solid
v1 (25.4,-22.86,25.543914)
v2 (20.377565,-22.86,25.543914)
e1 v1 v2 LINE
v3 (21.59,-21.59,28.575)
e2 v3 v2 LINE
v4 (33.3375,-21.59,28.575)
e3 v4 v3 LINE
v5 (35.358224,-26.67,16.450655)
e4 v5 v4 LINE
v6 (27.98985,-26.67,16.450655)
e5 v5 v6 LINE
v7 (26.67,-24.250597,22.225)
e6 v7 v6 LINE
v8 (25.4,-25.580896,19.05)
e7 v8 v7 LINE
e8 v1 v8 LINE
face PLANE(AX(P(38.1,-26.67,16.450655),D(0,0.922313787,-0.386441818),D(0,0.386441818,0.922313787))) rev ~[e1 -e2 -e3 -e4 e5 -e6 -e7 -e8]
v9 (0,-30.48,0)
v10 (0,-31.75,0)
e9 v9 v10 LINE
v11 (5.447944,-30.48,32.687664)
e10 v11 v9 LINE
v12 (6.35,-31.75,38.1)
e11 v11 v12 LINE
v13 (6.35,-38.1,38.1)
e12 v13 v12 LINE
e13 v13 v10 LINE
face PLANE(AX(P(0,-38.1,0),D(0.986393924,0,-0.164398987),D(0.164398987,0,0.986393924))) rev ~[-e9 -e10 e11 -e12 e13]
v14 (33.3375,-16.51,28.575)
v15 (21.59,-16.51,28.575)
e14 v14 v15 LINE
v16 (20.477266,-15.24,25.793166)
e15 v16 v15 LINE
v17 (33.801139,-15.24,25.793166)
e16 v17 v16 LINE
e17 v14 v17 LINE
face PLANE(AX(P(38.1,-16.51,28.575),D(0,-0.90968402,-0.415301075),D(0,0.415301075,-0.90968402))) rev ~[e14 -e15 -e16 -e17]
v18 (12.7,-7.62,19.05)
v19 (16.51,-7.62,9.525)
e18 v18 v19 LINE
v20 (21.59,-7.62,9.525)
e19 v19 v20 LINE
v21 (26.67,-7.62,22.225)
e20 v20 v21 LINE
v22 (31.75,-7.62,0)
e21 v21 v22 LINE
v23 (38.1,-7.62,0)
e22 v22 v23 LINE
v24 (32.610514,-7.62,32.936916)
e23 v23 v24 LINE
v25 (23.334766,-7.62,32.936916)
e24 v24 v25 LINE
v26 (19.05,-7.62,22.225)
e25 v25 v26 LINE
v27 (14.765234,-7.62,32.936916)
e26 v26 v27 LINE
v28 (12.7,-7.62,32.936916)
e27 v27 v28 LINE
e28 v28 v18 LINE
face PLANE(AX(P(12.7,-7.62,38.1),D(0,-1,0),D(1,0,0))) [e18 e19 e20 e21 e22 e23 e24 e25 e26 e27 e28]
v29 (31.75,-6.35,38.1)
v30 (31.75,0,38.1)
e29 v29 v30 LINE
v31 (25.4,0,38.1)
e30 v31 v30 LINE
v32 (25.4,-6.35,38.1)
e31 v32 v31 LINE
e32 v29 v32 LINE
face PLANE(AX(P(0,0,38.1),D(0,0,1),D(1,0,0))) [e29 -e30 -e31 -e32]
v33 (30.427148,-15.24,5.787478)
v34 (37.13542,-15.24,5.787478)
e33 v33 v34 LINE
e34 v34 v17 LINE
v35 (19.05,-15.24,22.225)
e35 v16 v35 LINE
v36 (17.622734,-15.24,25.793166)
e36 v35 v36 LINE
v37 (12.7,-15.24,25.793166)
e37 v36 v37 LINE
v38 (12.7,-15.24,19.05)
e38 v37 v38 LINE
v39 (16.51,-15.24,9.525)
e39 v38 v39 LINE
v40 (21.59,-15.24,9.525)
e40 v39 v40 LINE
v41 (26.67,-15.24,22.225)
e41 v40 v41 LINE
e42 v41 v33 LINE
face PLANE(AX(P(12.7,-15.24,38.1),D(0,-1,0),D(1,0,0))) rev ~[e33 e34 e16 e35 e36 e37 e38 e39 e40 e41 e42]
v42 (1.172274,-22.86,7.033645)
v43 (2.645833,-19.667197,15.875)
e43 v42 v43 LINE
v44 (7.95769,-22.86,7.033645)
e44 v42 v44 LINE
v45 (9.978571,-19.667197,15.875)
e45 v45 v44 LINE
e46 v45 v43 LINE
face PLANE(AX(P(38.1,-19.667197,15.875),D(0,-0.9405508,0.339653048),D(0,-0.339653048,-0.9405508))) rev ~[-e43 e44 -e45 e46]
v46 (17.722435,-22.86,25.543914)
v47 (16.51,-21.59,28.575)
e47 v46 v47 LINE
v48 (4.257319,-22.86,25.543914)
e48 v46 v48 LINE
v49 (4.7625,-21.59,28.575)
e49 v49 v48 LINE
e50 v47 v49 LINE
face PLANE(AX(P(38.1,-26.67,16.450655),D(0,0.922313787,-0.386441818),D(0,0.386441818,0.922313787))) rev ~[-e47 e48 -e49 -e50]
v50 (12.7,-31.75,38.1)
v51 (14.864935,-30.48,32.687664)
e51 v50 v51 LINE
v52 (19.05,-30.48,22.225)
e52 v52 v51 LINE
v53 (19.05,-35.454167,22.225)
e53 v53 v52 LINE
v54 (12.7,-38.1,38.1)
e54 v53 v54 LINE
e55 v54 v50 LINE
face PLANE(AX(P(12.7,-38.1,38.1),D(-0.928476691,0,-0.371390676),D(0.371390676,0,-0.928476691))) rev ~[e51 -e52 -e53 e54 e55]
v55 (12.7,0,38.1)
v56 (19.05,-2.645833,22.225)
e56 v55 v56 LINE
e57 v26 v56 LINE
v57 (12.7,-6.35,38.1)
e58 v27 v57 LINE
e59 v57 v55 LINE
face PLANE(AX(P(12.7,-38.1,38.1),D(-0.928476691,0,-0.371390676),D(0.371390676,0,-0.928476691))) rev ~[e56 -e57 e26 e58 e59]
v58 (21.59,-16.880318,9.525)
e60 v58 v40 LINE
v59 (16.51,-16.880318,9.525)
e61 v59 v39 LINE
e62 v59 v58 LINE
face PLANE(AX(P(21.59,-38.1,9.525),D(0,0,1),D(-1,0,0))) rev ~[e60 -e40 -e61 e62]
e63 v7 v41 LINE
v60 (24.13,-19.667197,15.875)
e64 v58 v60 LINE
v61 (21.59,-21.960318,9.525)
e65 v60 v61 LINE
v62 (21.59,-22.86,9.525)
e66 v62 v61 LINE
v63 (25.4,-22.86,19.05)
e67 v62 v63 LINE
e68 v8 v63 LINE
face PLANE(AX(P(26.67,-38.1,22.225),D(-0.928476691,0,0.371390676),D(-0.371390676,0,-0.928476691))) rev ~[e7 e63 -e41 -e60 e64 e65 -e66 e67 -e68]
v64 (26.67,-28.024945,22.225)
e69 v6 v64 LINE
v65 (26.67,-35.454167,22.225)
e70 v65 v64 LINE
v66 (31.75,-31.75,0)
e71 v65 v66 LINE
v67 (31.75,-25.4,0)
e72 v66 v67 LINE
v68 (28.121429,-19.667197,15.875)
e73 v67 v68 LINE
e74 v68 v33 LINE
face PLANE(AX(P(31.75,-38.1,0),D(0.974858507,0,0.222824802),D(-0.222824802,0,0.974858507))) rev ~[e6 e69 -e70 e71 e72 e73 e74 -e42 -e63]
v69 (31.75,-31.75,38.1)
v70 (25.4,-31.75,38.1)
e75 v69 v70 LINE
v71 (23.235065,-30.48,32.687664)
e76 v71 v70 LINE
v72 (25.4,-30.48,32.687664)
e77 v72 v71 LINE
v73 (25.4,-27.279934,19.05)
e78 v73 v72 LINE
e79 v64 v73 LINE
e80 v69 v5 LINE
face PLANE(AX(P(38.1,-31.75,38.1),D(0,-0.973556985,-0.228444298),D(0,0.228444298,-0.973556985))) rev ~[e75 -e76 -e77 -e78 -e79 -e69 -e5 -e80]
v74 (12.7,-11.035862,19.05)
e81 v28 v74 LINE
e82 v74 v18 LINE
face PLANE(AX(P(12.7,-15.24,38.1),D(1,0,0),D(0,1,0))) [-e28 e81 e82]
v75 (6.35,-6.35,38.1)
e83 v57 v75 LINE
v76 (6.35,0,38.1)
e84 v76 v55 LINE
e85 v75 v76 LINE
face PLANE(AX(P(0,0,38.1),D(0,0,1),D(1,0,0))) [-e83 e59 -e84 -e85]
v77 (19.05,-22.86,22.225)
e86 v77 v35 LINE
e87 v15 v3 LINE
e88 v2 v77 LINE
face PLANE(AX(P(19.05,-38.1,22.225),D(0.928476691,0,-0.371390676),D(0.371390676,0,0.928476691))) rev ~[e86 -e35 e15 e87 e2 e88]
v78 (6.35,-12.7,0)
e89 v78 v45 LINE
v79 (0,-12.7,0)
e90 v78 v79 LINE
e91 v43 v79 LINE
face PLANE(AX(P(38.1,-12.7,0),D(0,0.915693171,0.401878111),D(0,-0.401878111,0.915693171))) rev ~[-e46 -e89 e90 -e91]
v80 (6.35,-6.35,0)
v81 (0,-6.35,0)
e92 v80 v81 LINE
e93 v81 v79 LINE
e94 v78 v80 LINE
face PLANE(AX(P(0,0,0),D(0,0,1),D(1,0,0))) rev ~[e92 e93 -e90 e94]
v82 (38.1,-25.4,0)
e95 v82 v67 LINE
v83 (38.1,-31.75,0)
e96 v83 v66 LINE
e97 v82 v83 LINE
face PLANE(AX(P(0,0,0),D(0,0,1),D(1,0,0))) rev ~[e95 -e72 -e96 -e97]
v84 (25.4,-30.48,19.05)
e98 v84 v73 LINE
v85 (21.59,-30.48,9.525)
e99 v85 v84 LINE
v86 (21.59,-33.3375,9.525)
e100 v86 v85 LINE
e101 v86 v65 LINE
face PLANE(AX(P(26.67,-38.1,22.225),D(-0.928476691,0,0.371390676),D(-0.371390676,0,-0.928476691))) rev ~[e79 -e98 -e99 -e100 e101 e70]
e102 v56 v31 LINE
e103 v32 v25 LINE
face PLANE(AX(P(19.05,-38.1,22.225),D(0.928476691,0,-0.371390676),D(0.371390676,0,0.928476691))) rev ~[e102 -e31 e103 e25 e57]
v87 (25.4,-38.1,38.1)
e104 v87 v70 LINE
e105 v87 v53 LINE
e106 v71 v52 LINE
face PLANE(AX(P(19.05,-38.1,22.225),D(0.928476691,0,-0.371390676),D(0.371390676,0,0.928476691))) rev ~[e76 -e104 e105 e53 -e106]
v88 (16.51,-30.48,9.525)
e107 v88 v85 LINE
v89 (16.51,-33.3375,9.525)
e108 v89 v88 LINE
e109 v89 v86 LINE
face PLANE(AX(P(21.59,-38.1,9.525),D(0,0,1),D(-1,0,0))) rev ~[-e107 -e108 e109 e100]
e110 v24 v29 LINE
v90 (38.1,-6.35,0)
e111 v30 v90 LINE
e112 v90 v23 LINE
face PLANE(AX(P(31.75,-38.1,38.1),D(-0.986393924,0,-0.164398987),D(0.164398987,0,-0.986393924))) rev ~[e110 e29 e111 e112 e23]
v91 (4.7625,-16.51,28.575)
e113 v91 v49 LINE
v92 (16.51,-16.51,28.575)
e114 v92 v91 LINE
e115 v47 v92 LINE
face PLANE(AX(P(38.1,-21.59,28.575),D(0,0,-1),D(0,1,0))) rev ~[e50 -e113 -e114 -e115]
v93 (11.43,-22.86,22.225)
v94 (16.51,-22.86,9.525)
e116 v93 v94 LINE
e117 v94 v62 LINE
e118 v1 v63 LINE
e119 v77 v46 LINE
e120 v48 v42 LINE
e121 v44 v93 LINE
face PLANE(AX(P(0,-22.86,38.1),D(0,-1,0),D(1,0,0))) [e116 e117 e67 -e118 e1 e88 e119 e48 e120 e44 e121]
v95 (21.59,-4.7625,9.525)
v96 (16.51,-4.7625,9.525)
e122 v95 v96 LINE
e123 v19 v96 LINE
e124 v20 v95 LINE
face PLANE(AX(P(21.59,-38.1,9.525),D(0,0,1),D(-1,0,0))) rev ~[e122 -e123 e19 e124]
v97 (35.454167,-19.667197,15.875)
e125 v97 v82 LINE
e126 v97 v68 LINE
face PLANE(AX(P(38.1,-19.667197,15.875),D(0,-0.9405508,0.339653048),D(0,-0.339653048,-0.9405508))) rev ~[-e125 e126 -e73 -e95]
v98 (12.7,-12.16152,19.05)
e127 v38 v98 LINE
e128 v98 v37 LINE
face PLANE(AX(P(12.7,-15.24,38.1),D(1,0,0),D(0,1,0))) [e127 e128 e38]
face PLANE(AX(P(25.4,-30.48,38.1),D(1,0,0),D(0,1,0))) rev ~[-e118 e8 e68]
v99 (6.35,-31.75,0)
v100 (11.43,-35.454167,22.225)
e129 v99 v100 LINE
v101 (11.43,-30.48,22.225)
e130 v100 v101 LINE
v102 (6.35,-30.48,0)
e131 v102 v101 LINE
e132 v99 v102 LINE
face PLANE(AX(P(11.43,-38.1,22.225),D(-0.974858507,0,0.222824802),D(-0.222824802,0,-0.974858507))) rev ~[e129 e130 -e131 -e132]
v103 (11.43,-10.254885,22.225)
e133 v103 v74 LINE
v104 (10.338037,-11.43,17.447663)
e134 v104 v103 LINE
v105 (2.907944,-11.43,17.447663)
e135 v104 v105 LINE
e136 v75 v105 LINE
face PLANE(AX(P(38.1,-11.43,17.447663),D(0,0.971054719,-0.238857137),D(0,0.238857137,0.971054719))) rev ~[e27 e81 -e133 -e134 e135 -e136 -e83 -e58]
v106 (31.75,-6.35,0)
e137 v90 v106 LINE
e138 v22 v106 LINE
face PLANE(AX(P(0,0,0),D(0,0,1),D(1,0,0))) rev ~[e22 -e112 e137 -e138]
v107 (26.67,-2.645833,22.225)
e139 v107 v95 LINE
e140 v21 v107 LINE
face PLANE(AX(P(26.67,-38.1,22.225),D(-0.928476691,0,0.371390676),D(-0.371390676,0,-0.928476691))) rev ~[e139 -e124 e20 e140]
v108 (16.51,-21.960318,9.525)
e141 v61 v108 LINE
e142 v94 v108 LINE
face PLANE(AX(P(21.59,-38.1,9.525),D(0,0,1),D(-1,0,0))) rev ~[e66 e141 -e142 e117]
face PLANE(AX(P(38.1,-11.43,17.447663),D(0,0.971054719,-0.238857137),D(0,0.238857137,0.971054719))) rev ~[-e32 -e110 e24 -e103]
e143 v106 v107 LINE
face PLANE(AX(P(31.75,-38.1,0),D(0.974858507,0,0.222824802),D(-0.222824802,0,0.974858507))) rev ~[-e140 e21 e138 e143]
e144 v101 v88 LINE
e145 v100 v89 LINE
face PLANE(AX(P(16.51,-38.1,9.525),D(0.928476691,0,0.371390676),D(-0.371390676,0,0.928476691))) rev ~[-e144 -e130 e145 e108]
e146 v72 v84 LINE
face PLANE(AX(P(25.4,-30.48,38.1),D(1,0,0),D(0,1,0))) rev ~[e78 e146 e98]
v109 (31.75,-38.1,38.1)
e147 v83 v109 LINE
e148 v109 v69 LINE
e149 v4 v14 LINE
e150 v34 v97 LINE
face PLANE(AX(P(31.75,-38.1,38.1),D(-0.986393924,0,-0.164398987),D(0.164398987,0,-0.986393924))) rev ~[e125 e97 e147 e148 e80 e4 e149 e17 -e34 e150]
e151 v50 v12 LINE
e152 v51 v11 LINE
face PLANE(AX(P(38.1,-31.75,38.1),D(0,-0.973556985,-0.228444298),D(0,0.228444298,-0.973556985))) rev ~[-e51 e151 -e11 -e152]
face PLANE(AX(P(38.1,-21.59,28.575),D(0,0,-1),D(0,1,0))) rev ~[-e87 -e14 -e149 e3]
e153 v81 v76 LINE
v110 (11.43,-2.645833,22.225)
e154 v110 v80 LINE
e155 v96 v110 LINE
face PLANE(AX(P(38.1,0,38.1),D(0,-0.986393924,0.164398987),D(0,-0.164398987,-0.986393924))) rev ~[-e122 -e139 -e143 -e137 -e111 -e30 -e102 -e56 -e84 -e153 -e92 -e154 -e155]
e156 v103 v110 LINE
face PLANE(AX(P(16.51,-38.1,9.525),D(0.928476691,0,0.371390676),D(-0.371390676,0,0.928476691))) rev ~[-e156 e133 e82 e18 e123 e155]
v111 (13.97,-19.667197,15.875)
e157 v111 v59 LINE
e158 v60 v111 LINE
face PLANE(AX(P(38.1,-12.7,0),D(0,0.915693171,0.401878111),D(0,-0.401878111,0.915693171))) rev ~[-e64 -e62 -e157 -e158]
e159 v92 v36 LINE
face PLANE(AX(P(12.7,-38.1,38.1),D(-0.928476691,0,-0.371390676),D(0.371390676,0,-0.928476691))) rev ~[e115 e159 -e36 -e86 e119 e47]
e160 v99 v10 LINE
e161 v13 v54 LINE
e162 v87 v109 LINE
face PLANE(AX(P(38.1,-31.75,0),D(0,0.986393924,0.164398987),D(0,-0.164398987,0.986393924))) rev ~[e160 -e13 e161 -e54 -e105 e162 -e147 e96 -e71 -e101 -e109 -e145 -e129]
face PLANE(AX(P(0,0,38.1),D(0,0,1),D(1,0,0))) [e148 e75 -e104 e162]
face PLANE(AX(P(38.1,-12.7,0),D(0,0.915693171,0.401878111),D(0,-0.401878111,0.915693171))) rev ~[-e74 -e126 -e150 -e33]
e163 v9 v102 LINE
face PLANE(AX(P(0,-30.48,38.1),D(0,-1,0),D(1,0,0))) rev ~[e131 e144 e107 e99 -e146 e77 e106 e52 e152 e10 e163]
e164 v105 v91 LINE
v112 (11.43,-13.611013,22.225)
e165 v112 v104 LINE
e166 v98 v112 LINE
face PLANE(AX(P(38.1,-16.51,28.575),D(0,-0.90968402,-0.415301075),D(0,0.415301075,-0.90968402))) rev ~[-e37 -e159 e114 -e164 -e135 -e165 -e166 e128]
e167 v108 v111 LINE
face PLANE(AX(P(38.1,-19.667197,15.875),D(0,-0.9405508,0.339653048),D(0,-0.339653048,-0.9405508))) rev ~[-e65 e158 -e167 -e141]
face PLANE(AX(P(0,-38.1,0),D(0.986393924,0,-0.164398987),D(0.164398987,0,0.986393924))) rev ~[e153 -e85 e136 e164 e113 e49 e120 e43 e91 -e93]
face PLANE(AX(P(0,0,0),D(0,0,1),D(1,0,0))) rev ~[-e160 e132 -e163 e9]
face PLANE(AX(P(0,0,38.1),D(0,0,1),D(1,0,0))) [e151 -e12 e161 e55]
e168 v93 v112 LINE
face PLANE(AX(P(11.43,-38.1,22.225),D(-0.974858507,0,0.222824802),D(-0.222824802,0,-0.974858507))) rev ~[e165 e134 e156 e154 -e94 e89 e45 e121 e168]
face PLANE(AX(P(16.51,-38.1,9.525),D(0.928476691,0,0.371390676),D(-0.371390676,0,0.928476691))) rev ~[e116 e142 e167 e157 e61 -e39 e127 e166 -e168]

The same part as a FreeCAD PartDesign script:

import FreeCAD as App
import Part
import Sketcher
from FreeCAD import Vector
Q = App.Units.Quantity


def add_polygon(sketch, points):
    """Adds a closed chain of lines whose ends are joined by coincident constraints."""
    first, n = sketch.GeometryCount, len(points)
    for a, b in zip(points, points[1:] + points[:1]):
        sketch.addGeometry(Part.LineSegment(App.Vector(*a, 0), App.Vector(*b, 0)), False)
    for i in range(n):
        sketch.addConstraint(Sketcher.Constraint("Coincident", first + i, 2, first + (i + 1) % n, 1))

doc = App.newDocument("Part")
params = doc.addObject("Spreadsheet::Sheet", "Params")
for row, (alias, value) in enumerate([
    ("sketch1_width", "1.5 in"),
    ("pad1_length", "1.5 in"),
    ("sketch2_width", "1 in"),
    ("sketch2_width2", "0.5 in"),
    ("sketch2_width3", "0.2 in"),
    ("sketch2_height", "1.5 in"),
    ("pocket1_length", "1.5 in"),
    ("sketch3_width", "1 in"),
    ("sketch3_width2", "0.5 in"),
    ("sketch3_width3", "0.2 in"),
    ("sketch3_height", "1.5 in"),
    ("pocket2_length", "1.5 in"),
    ("sketch4_width", "1 in"),
    ("sketch4_height", "0.3 in"),
    ("pocket3_length", "1.5 in"),
], start=1):
    params.set(f"A{row}", alias)
    params.set(f"B{row}", "=" + value)
    params.setAlias(f"B{row}", alias)

body = doc.addObject("PartDesign::Body", "Body")

sketch1 = body.newObject("Sketcher::SketchObject", "Sketch")
sketch1.AttachmentSupport = (doc.getObject("XZ_Plane"), [""])
sketch1.MapMode = "FlatFace"
add_polygon(sketch1, [(0, 38.1), (0, 0), (38.1, 0), (38.1, 38.1)])
sketch1.addConstraint(Sketcher.Constraint("Vertical", 0))
sketch1.addConstraint(Sketcher.Constraint("Horizontal", 1))
sketch1.addConstraint(Sketcher.Constraint("Vertical", 2))
sketch1.addConstraint(Sketcher.Constraint("Horizontal", 3))
sketch1.addConstraint(Sketcher.Constraint("Coincident", 0, 2, -1, 1))
sketch1.addConstraint(Sketcher.Constraint("Equal", 3, 0))
sketch1.addConstraint(Sketcher.Constraint("DistanceX", 1, 1, 1, 2, Q("1.5 in")))
sketch1.setExpression("Constraints[10]", "Params.sketch1_width")
pad1 = body.newObject("PartDesign::Pad", "Pad")
pad1.Profile = sketch1
pad1.setExpression("Length", "Params.pad1_length")

sketch2 = body.newObject("Sketcher::SketchObject", "Sketch001")
sketch2.AttachmentSupport = (doc.getObject("YZ_Plane"), [""])
sketch2.MapMode = "FlatFace"
sketch2.AttachmentOffset = App.Placement(Vector(0, 0, 1.5 * 25.4), App.Rotation())
add_polygon(sketch2, [(-31.75, 0), (-38.1, 38.1), (-38.1, 0)])
add_polygon(sketch2, [(-19.667197, 15.875), (-25.4, 0), (-12.7, 0)])
add_polygon(sketch2, [(-6.35, 38.1), (-31.75, 38.1), (-26.67, 16.450655), (-21.59, 28.575), (-16.51, 28.575), (-11.43, 17.447663)])
add_polygon(sketch2, [(0, 0), (0, 38.1), (-6.35, 0)])
sketch2.addConstraint(Sketcher.Constraint("Vertical", 1))
sketch2.addConstraint(Sketcher.Constraint("Horizontal", 2))
sketch2.addConstraint(Sketcher.Constraint("Horizontal", 4))
sketch2.addConstraint(Sketcher.Constraint("Horizontal", 6))
sketch2.addConstraint(Sketcher.Constraint("Horizontal", 9))
sketch2.addConstraint(Sketcher.Constraint("Vertical", 12))
sketch2.addConstraint(Sketcher.Constraint("Horizontal", 14))
sketch2.addConstraint(Sketcher.Constraint("Coincident", 14, 2, -1, 1))
sketch2.addConstraint(Sketcher.Constraint("PointOnObject", 1, 2, -1))
sketch2.addConstraint(Sketcher.Constraint("PointOnObject", 3, 2, -1))
sketch2.addConstraint(Sketcher.Constraint("Horizontal", 0, 2, 6, 2))
sketch2.addConstraint(Sketcher.Constraint("Horizontal", 11, 2, 12, 2))
sketch2.addConstraint(Sketcher.Constraint("Vertical", 2, 2, 6, 2))
sketch2.addConstraint(Sketcher.Constraint("Vertical", 11, 2, 13, 2))
sketch2.addConstraint(Sketcher.Constraint("Equal", 2, 14))
sketch2.addConstraint(Sketcher.Constraint("DistanceX", 6, 2, 6, 1, Q("1 in")))
sketch2.addConstraint(Sketcher.Constraint("DistanceX", 4, 1, 4, 2, Q("0.5 in")))
sketch2.addConstraint(Sketcher.Constraint("DistanceX", 9, 1, 9, 2, Q("0.2 in")))
sketch2.addConstraint(Sketcher.Constraint("DistanceY", 1, 2, 1, 1, Q("1.5 in")))
sketch2.addConstraint(Sketcher.Constraint("DistanceX", 3, 2, -1, 1, Q("1 in")))
sketch2.addConstraint(Sketcher.Constraint("DistanceX", 1, 2, 4, 2, Q("1 in")))
sketch2.addConstraint(Sketcher.Constraint("DistanceX", 2, 2, 7, 2, Q("0.2 in")))
sketch2.addConstraint(Sketcher.Constraint("DistanceY", 5, 2, 8, 2, Q("0.5 in")))
sketch2.addConstraint(Sketcher.Constraint("DistanceX", 7, 2, 8, 2, Q("0.2 in")))
sketch2.addConstraint(Sketcher.Constraint("DistanceX", 9, 2, 10, 2, Q("0.2 in")))
sketch2.addConstraint(Sketcher.Constraint("DistanceY", -1, 1, 5, 2, Q("0.625 in")))
sketch2.addConstraint(Sketcher.Constraint("Distance", 7, Q("22.237368 mm")))
sketch2.addConstraint(Sketcher.Constraint("Distance", 10, Q("12.23209 mm")))
sketch2.addConstraint(Sketcher.Constraint("Distance", 3, Q("16.878408 mm")))
sketch2.setExpression("Constraints[30]", "Params.sketch2_width")
sketch2.setExpression("Constraints[31]", "Params.sketch2_width2")
sketch2.setExpression("Constraints[32]", "Params.sketch2_width3")
sketch2.setExpression("Constraints[33]", "Params.sketch2_height")
pocket1 = body.newObject("PartDesign::Pocket", "Pocket")
pocket1.Profile = sketch2
pocket1.setExpression("Length", "Params.pocket1_length")

sketch3 = body.newObject("Sketcher::SketchObject", "Sketch002")
sketch3.AttachmentSupport = (doc.getObject("XZ_Plane"), [""])
sketch3.MapMode = "FlatFace"
sketch3.AttachmentOffset = App.Placement(Vector(0, 0, 1.5 * 25.4), App.Rotation())
add_polygon(sketch3, [(0, 38.1), (0, 0), (6.35, 38.1)])
add_polygon(sketch3, [(25.4, 38.1), (12.7, 38.1), (19.05, 22.225)])
add_polygon(sketch3, [(11.43, 22.225), (6.35, 0), (31.75, 0), (26.67, 22.225), (21.59, 9.525), (16.51, 9.525)])
add_polygon(sketch3, [(31.75, 38.1), (38.1, 0), (38.1, 38.1)])
sketch3.addConstraint(Sketcher.Constraint("Vertical", 0))
sketch3.addConstraint(Sketcher.Constraint("Horizontal", 2))
sketch3.addConstraint(Sketcher.Constraint("Horizontal", 3))
sketch3.addConstraint(Sketcher.Constraint("Horizontal", 7))
sketch3.addConstraint(Sketcher.Constraint("Horizontal", 10))
sketch3.addConstraint(Sketcher.Constraint("Vertical", 13))
sketch3.addConstraint(Sketcher.Constraint("Horizontal", 14))
sketch3.addConstraint(Sketcher.Constraint("Coincident", 0, 2, -1, 1))
sketch3.addConstraint(Sketcher.Constraint("PointOnObject", 6, 2, -1))
sketch3.addConstraint(Sketcher.Constraint("PointOnObject", 12, 2, -1))
sketch3.addConstraint(Sketcher.Constraint("Parallel", 5, 9))
sketch3.addConstraint(Sketcher.Constraint("Parallel", 4, 11))
sketch3.addConstraint(Sketcher.Constraint("Horizontal", 2, 2, 3, 2))
sketch3.addConstraint(Sketcher.Constraint("Horizontal", 4, 2, 8, 2))
sketch3.addConstraint(Sketcher.Constraint("Horizontal", 8, 2, 11, 2))
sketch3.addConstraint(Sketcher.Constraint("Horizontal", 5, 2, 13, 2))
sketch3.addConstraint(Sketcher.Constraint("Vertical", 1, 2, 6, 2))
sketch3.addConstraint(Sketcher.Constraint("Vertical", 7, 2, 14, 2))
sketch3.addConstraint(Sketcher.Constraint("Equal", 2, 14))
sketch3.addConstraint(Sketcher.Constraint("Equal", 4, 5))
sketch3.addConstraint(Sketcher.Constraint("Equal", 6, 8))
sketch3.addConstraint(Sketcher.Constraint("DistanceX", 7, 1, 7, 2, Q("1 in")))
sketch3.addConstraint(Sketcher.Constraint("DistanceX", 3, 2, 3, 1, Q("0.5 in")))
sketch3.addConstraint(Sketcher.Constraint("DistanceX", 10, 2, 10, 1, Q("0.2 in")))
sketch3.addConstraint(Sketcher.Constraint("DistanceY", 0, 2, 0, 1, Q("1.5 in")))
sketch3.addConstraint(Sketcher.Constraint("DistanceX", -1, 1, 5, 2, Q("1 in")))
sketch3.addConstraint(Sketcher.Constraint("DistanceX", 3, 2, 13, 2, Q("1 in")))
sketch3.addConstraint(Sketcher.Constraint("DistanceX", 4, 2, 8, 2, Q("0.3 in")))
sketch3.addConstraint(Sketcher.Constraint("DistanceY", 9, 2, 4, 2, Q("0.5 in")))
sketch3.setExpression("Constraints[36]", "Params.sketch3_width")
sketch3.setExpression("Constraints[37]", "Params.sketch3_width2")
sketch3.setExpression("Constraints[38]", "Params.sketch3_width3")
sketch3.setExpression("Constraints[39]", "Params.sketch3_height")
pocket2 = body.newObject("PartDesign::Pocket", "Pocket001")
pocket2.Profile = sketch3
pocket2.setExpression("Length", "Params.pocket2_length")

sketch4 = body.newObject("Sketcher::SketchObject", "Sketch003")
sketch4.AttachmentSupport = (doc.getObject("XY_Plane"), [""])
sketch4.MapMode = "FlatFace"
sketch4.AttachmentOffset = App.Placement(Vector(0, 0, 1.5 * 25.4), App.Rotation())
add_polygon(sketch4, [(12.7, -7.62), (12.7, -15.24), (38.1, -15.24), (38.1, -7.62)])
add_polygon(sketch4, [(0, -22.86), (0, -30.48), (25.4, -30.48), (25.4, -22.86)])
sketch4.addConstraint(Sketcher.Constraint("Vertical", 0))
sketch4.addConstraint(Sketcher.Constraint("Horizontal", 1))
sketch4.addConstraint(Sketcher.Constraint("Vertical", 2))
sketch4.addConstraint(Sketcher.Constraint("Horizontal", 3))
sketch4.addConstraint(Sketcher.Constraint("Vertical", 4))
sketch4.addConstraint(Sketcher.Constraint("Horizontal", 5))
sketch4.addConstraint(Sketcher.Constraint("Vertical", 6))
sketch4.addConstraint(Sketcher.Constraint("Horizontal", 7))
sketch4.addConstraint(Sketcher.Constraint("PointOnObject", 4, 2, -2))
sketch4.addConstraint(Sketcher.Constraint("Equal", 3, 5))
sketch4.addConstraint(Sketcher.Constraint("Equal", 2, 4))
sketch4.addConstraint(Sketcher.Constraint("DistanceX", 1, 1, 1, 2, Q("1 in")))
sketch4.addConstraint(Sketcher.Constraint("DistanceY", 0, 2, 0, 1, Q("0.3 in")))
sketch4.addConstraint(Sketcher.Constraint("DistanceX", -1, 1, 0, 2, Q("0.5 in")))
sketch4.addConstraint(Sketcher.Constraint("DistanceY", 0, 2, -1, 1, Q("0.6 in")))
sketch4.addConstraint(Sketcher.Constraint("DistanceY", 4, 2, -1, 1, Q("1.2 in")))
sketch4.setExpression("Constraints[19]", "Params.sketch4_width")
sketch4.setExpression("Constraints[20]", "Params.sketch4_height")
pocket3 = body.newObject("PartDesign::Pocket", "Pocket002")
pocket3.Profile = sketch4
pocket3.setExpression("Length", "Params.pocket3_length")

doc.recompute()
